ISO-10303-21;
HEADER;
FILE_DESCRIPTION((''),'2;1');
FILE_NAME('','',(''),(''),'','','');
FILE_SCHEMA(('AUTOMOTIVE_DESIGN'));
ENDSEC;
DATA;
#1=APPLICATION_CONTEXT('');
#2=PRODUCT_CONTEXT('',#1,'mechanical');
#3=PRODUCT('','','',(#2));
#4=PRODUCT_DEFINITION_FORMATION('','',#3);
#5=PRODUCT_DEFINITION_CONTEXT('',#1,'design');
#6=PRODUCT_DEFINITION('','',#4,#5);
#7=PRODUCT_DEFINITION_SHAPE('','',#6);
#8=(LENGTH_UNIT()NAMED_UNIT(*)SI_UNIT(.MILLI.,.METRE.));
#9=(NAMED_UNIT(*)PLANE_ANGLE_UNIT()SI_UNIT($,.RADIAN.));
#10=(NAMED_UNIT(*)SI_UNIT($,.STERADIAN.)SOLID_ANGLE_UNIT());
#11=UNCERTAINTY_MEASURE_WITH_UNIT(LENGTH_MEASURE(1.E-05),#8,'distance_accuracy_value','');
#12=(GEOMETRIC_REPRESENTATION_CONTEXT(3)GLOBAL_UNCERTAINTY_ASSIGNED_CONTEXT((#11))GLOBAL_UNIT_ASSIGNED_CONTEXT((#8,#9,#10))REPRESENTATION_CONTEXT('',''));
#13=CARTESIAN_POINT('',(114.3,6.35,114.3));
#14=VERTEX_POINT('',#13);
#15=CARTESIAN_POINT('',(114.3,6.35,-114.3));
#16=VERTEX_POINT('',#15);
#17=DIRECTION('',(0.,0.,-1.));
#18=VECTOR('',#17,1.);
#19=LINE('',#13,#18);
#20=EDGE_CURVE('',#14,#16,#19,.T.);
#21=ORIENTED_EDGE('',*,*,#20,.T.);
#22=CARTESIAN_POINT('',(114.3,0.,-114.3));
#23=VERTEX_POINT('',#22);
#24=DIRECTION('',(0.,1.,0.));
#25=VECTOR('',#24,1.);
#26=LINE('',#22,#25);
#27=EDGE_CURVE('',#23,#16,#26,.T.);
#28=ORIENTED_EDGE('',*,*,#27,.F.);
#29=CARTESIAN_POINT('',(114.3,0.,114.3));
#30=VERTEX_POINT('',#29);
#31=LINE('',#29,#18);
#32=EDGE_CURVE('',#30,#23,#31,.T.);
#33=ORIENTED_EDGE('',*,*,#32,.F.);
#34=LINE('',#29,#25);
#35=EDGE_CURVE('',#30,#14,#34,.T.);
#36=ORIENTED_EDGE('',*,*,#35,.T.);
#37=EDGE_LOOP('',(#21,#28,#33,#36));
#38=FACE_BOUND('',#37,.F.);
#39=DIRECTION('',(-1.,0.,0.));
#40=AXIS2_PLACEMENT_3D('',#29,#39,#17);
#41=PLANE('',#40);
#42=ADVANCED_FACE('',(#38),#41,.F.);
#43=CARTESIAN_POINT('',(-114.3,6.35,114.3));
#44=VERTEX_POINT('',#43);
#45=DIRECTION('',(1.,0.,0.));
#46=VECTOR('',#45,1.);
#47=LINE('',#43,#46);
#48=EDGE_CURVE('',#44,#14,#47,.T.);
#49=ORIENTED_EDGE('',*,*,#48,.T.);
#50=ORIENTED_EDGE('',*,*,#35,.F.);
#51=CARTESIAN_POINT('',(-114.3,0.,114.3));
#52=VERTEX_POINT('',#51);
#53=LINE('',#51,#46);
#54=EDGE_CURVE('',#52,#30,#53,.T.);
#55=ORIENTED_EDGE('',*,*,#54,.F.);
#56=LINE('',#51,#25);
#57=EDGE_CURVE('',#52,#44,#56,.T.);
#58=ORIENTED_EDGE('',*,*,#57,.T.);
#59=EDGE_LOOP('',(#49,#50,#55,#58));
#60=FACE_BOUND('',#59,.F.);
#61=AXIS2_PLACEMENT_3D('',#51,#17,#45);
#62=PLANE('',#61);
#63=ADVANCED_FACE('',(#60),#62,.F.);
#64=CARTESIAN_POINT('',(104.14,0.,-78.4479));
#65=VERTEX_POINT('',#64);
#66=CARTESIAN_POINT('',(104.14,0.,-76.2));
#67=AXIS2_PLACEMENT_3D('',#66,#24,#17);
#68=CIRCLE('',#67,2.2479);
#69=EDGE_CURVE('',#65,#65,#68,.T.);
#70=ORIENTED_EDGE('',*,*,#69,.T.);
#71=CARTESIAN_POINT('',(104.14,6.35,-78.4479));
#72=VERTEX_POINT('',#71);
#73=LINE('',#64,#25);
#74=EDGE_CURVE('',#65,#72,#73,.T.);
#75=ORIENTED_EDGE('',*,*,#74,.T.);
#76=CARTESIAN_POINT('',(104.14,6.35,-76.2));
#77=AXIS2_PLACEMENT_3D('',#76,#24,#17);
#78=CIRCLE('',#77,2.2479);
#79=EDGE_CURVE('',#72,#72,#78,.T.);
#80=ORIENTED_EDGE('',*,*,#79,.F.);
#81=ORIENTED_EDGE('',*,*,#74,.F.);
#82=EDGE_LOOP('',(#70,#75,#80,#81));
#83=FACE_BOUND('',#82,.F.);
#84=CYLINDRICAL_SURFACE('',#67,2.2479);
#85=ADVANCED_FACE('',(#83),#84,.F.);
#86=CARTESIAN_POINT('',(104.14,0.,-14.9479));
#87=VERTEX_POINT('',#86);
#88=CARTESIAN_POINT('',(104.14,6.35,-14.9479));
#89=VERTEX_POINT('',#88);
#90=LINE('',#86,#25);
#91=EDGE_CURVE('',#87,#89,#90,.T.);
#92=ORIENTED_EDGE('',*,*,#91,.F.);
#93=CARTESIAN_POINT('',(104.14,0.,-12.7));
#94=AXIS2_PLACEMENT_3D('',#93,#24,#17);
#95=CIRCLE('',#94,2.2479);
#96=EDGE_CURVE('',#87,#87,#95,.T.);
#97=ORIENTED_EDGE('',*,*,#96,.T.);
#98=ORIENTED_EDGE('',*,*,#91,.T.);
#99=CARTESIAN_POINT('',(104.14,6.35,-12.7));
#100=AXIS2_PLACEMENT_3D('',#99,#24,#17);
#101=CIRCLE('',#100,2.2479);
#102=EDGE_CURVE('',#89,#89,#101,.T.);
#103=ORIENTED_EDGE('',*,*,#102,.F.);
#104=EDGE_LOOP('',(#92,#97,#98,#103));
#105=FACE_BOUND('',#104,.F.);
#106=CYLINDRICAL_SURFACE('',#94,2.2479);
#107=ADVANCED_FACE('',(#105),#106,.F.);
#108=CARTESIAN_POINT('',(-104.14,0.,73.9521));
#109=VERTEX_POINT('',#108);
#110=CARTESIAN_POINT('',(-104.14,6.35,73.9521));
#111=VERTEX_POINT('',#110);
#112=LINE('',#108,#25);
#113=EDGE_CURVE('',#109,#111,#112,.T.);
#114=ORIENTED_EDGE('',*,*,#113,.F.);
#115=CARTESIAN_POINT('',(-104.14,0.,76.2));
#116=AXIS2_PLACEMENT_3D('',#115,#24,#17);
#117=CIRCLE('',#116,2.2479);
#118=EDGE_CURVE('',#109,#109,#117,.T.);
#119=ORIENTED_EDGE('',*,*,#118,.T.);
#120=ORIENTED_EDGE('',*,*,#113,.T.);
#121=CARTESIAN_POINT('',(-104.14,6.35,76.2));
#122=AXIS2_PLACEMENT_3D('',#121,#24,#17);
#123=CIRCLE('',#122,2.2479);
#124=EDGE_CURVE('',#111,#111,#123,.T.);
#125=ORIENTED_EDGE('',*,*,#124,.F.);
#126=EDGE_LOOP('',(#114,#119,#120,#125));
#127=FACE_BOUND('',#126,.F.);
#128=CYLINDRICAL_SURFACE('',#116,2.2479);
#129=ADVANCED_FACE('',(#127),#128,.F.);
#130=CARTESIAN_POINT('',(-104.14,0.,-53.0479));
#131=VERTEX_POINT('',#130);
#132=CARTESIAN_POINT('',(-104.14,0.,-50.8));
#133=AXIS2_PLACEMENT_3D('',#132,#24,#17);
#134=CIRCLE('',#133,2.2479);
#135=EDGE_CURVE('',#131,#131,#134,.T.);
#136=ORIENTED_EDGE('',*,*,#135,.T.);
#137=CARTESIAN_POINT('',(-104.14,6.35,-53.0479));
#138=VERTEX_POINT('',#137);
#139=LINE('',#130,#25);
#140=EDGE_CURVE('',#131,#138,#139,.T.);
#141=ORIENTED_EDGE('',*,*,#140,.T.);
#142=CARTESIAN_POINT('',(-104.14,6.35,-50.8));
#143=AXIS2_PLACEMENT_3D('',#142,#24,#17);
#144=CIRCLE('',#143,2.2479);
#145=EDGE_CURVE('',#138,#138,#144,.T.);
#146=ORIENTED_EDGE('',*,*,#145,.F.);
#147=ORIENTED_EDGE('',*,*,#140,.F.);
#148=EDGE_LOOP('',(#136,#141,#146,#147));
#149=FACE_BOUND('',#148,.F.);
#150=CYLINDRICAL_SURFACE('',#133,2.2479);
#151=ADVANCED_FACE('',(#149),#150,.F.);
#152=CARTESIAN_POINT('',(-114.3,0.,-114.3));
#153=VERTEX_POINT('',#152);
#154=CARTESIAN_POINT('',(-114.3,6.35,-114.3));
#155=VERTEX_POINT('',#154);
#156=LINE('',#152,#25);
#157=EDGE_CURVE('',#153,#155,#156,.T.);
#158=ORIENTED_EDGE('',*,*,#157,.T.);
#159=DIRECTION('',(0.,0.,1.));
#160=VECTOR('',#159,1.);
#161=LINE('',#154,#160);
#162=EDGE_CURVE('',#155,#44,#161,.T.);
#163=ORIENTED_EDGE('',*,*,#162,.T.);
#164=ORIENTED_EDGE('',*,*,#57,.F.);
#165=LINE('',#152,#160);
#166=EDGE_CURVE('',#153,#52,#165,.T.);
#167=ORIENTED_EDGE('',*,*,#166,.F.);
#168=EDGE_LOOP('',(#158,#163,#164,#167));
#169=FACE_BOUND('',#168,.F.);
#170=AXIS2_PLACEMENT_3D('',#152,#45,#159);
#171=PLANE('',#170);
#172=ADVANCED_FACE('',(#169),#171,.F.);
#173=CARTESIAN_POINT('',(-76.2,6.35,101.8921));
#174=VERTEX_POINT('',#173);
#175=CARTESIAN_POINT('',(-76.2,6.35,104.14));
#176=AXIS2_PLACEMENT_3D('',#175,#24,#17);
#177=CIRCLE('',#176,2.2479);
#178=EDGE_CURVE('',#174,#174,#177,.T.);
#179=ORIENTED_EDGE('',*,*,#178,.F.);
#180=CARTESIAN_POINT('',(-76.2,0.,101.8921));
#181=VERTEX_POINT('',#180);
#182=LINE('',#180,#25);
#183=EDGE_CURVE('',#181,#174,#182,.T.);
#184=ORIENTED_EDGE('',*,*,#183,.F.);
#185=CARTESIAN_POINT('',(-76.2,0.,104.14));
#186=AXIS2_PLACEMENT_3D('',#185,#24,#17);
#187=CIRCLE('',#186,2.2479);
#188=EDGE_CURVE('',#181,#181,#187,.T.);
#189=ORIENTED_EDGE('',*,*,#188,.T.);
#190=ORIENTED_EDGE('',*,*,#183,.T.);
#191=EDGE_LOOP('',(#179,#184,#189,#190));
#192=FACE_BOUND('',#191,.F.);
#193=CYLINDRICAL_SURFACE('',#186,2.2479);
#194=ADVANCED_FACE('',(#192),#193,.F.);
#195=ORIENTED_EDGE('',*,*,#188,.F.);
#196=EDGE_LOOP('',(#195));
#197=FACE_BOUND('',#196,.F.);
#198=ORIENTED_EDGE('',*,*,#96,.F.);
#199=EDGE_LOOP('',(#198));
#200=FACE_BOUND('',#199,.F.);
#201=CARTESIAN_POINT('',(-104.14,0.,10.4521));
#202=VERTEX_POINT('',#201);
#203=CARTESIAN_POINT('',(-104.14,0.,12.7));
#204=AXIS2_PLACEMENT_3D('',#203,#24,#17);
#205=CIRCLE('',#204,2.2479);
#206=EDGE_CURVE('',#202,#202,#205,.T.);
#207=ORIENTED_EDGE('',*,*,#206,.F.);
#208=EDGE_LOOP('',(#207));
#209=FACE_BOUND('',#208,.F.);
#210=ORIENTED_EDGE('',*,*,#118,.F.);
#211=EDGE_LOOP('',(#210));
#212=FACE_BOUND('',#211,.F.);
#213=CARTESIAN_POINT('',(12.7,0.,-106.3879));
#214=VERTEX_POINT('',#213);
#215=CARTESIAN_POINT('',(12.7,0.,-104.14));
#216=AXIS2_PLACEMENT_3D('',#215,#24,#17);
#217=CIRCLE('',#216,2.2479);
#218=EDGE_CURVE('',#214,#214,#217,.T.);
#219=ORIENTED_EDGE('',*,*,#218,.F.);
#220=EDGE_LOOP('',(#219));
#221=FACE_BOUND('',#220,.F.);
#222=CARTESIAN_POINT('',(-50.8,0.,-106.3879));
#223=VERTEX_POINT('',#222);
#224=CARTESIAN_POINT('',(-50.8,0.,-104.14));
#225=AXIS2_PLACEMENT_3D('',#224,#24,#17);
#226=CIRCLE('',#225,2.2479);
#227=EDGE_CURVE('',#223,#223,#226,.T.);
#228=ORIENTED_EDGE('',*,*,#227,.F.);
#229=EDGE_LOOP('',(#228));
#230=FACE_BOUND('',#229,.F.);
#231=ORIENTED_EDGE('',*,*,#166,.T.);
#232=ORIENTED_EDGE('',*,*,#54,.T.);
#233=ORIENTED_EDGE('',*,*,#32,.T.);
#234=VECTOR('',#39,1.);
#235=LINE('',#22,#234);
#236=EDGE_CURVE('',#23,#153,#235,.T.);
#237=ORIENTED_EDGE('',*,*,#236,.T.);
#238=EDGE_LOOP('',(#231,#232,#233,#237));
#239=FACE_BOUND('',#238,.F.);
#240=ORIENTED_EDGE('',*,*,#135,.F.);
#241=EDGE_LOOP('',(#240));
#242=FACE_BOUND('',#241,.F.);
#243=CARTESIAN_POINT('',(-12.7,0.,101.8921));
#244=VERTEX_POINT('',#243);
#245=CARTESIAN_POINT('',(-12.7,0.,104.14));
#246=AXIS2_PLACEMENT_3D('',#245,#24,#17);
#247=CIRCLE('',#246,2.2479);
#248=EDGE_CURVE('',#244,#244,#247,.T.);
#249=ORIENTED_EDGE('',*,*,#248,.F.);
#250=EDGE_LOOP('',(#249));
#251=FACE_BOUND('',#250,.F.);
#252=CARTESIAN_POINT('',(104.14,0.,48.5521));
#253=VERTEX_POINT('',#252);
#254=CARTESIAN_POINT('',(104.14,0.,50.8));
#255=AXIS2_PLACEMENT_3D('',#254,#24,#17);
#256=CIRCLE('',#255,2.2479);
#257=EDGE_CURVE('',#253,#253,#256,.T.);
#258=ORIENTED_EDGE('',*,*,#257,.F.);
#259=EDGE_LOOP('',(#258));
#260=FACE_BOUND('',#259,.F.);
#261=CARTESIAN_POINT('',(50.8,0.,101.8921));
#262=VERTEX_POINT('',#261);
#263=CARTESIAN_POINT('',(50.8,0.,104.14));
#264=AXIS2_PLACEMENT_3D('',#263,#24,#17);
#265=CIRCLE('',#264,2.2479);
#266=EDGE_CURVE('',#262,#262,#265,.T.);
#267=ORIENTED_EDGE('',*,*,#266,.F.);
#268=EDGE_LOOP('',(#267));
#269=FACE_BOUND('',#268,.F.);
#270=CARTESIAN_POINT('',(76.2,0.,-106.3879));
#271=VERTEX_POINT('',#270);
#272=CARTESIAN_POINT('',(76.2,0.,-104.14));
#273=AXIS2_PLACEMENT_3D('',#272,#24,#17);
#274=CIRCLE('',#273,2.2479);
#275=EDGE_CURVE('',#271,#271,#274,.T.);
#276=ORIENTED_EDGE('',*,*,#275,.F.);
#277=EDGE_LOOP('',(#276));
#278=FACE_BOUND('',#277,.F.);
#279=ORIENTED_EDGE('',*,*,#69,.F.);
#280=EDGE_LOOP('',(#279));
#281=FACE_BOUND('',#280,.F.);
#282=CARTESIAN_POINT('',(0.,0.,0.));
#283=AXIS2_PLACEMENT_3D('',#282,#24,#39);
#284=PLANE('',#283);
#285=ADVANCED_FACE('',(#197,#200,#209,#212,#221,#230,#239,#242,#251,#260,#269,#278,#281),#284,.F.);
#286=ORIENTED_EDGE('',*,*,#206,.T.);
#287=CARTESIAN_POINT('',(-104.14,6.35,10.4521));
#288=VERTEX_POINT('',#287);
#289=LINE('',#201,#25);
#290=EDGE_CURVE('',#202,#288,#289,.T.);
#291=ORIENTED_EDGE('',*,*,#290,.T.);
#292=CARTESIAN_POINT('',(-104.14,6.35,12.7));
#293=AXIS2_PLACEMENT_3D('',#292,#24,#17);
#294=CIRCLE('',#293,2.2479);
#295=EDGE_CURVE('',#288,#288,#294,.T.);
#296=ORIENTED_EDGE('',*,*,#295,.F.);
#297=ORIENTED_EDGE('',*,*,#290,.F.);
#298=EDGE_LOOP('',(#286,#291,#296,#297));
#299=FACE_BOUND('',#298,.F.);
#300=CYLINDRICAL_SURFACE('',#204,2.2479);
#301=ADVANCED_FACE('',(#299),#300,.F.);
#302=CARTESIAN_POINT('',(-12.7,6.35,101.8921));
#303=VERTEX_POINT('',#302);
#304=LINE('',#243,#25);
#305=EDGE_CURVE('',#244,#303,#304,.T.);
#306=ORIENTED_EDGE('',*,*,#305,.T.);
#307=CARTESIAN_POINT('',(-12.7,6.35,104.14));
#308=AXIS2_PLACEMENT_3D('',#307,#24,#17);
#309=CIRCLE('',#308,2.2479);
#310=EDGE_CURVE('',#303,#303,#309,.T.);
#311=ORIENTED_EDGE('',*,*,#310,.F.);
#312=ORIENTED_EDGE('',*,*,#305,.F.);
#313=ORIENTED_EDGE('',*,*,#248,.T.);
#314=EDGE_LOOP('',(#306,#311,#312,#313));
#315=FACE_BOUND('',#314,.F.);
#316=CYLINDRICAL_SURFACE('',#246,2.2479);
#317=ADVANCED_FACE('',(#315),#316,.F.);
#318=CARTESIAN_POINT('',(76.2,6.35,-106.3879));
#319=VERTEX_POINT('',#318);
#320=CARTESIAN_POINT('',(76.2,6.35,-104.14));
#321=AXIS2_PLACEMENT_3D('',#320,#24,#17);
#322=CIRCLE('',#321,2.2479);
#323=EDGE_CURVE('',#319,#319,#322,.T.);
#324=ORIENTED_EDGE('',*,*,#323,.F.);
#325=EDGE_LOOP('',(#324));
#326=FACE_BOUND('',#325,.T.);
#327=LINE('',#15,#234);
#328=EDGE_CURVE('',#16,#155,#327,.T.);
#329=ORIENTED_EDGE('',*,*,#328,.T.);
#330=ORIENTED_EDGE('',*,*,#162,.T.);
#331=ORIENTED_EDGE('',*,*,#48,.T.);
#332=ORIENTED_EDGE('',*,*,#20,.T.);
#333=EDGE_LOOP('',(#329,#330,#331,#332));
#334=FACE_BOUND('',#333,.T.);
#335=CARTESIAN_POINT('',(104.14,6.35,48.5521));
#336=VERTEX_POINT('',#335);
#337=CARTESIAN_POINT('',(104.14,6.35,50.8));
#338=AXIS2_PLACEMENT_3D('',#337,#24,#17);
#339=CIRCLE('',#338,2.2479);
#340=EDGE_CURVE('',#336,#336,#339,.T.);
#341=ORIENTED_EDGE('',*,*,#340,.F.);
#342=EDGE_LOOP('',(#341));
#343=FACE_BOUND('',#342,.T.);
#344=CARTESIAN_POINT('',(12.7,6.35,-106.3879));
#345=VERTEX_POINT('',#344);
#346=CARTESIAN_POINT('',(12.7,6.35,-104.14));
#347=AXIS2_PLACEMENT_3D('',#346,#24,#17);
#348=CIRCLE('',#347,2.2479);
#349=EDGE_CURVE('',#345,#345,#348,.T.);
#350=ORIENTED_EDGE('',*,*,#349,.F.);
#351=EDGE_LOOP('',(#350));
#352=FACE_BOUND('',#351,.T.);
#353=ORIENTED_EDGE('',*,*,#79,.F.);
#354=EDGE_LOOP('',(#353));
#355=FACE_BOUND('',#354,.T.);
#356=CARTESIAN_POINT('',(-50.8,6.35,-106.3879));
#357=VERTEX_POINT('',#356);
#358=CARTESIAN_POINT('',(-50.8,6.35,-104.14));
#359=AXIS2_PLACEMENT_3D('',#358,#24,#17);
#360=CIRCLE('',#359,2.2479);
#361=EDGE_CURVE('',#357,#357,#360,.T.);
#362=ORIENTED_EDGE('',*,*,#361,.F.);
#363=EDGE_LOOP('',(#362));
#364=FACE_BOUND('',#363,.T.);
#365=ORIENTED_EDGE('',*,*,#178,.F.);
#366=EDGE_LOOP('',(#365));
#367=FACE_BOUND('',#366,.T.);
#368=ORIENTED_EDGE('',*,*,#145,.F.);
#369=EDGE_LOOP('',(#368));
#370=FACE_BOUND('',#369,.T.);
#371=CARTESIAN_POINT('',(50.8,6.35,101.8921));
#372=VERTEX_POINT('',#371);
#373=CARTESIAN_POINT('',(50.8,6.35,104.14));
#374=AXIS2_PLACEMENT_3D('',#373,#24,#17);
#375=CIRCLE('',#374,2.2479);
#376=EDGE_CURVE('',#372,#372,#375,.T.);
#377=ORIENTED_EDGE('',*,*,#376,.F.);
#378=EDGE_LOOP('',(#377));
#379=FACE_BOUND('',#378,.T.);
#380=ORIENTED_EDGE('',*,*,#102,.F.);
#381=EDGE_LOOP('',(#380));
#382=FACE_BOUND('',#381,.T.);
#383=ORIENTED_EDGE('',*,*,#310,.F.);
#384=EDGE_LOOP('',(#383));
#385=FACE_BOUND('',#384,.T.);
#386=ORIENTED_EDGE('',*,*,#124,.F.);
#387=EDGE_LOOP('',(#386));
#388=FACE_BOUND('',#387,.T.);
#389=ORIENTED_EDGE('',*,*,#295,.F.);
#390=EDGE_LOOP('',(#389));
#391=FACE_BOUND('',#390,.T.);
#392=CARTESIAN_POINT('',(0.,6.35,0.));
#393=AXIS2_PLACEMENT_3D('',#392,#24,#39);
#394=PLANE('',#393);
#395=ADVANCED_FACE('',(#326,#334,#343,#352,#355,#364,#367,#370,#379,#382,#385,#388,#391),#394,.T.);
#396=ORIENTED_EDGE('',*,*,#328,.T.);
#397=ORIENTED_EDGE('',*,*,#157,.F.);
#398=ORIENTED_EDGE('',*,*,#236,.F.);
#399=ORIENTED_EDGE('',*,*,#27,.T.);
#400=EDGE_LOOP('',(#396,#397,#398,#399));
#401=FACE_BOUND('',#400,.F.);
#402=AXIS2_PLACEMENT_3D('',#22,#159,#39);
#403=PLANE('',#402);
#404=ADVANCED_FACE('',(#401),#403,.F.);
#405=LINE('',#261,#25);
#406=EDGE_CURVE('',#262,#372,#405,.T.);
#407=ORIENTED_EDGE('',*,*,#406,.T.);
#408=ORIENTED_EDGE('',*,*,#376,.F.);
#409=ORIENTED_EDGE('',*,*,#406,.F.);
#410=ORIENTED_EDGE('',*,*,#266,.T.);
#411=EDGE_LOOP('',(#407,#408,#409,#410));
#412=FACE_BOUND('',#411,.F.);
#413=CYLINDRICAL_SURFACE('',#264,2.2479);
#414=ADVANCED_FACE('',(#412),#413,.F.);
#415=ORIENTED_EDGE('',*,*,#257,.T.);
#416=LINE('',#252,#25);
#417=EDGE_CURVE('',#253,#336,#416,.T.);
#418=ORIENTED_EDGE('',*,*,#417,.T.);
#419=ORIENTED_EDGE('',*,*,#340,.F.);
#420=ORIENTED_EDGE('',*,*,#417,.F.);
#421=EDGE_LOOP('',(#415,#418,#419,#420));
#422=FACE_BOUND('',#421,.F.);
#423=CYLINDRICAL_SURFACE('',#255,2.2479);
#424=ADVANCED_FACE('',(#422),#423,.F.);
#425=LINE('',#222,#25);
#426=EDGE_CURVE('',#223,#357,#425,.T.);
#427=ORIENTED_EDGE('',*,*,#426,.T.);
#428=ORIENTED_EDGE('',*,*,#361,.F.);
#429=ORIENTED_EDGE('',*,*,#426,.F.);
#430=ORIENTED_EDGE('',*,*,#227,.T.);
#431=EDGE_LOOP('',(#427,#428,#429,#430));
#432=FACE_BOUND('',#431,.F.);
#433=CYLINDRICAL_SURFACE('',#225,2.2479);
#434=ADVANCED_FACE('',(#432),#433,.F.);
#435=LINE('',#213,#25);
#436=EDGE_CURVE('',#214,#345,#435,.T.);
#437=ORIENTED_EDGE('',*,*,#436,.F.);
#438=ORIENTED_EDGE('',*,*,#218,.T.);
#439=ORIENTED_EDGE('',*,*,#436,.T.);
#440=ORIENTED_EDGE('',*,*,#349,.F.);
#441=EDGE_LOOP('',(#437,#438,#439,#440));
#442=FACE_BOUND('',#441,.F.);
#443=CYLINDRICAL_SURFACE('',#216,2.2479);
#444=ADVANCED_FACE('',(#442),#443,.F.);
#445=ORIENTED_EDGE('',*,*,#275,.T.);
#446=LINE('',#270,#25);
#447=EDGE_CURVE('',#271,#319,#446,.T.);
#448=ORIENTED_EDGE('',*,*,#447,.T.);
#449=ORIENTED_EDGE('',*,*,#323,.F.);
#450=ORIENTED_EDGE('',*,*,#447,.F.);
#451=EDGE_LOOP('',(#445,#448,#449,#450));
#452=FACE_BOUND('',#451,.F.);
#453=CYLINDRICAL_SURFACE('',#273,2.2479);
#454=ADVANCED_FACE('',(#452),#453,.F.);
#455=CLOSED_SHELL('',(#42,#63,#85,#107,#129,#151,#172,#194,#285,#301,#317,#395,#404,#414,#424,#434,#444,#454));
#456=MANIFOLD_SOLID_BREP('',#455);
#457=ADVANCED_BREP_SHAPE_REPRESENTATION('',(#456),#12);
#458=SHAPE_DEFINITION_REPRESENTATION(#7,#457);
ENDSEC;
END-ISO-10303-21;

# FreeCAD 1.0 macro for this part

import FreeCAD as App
import Part
import Sketcher
Q = App.Units.Quantity


def add_polygon(sketch, points):
    """Adds a closed chain of lines whose ends are joined by coincident constraints."""
    first, n = sketch.GeometryCount, len(points)
    for a, b in zip(points, points[1:] + points[:1]):
        sketch.addGeometry(Part.LineSegment(App.Vector(*a, 0), App.Vector(*b, 0)), False)
    for i in range(n):
        sketch.addConstraint(Sketcher.Constraint("Coincident", first + i, 2, first + (i + 1) % n, 1))

doc = App.newDocument("Part")
body = doc.addObject("PartDesign::Body", "Body")

sketch1 = body.newObject("Sketcher::SketchObject", "Sketch")
sketch1.AttachmentSupport = (doc.getObject("XZ_Plane"), [""])
sketch1.MapMode = "FlatFace"
add_polygon(sketch1, [(-114.3, -114.3), (-114.3, 114.3), (114.3, 114.3), (114.3, -114.3)])
sketch1.addConstraint([
    Sketcher.Constraint("Vertical", 0),
    Sketcher.Constraint("Horizontal", 1),
    Sketcher.Constraint("Vertical", 2),
    Sketcher.Constraint("Horizontal", 3),
    Sketcher.Constraint("Symmetric", 0, 2, 2, 2, -1, 1),
    Sketcher.Constraint("Equal", 3, 0),
    Sketcher.Constraint("DistanceX", 1, 1, 1, 2, Q("9 in")),
])
pad1 = body.newObject("PartDesign::Pad", "Pad")
pad1.Profile = sketch1
pad1.Length = Q("0.25 in")
pad1.Reversed = True

sketch2 = body.newObject("Sketcher::SketchObject", "Sketch001")
sketch2.AttachmentSupport = (doc.getObject("XZ_Plane"), [""])
sketch2.MapMode = "FlatFace"
sketch2.addGeometry([
    Part.Circle(App.Vector(-104.14, -50.8, 0), App.Vector(0, 0, 1), 2.2479),
    Part.Circle(App.Vector(-104.14, 12.7, 0), App.Vector(0, 0, 1), 2.2479),
    Part.Circle(App.Vector(-50.8, -104.14, 0), App.Vector(0, 0, 1), 2.2479),
    Part.Circle(App.Vector(12.7, -104.14, 0), App.Vector(0, 0, 1), 2.2479),
    Part.Circle(App.Vector(-12.7, 104.14, 0), App.Vector(0, 0, 1), 2.2479),
    Part.Circle(App.Vector(50.8, 104.14, 0), App.Vector(0, 0, 1), 2.2479),
    Part.Circle(App.Vector(104.14, 50.8, 0), App.Vector(0, 0, 1), 2.2479),
    Part.Circle(App.Vector(104.14, -12.7, 0), App.Vector(0, 0, 1), 2.2479),
    Part.Circle(App.Vector(76.2, -104.14, 0), App.Vector(0, 0, 1), 2.2479),
    Part.Circle(App.Vector(104.14, -76.2, 0), App.Vector(0, 0, 1), 2.2479),
    Part.Circle(App.Vector(-104.14, 76.2, 0), App.Vector(0, 0, 1), 2.2479),
    Part.Circle(App.Vector(-76.2, 104.14, 0), App.Vector(0, 0, 1), 2.2479),
], False)
sketch2.addConstraint([
    Sketcher.Constraint("Equal", 0, 1),
    Sketcher.Constraint("Equal", 1, 2),
    Sketcher.Constraint("Equal", 2, 3),
    Sketcher.Constraint("Equal", 3, 4),
    Sketcher.Constraint("Equal", 4, 5),
    Sketcher.Constraint("Equal", 5, 6),
    Sketcher.Constraint("Equal", 6, 7),
    Sketcher.Constraint("Equal", 7, 8),
    Sketcher.Constraint("Equal", 8, 9),
    Sketcher.Constraint("Equal", 9, 10),
    Sketcher.Constraint("Equal", 10, 11),
    Sketcher.Constraint("Symmetric", 3, 3, 4, 3, -1, 1),
    Sketcher.Constraint("Symmetric", 2, 3, 5, 3, -1, 1),
    Sketcher.Constraint("Symmetric", 0, 3, 6, 3, -1, 1),
    Sketcher.Constraint("Symmetric", 1, 3, 7, 3, -1, 1),
    Sketcher.Constraint("Symmetric", 9, 3, 10, 3, -1, 1),
    Sketcher.Constraint("Symmetric", 8, 3, 11, 3, -1, 1),
    Sketcher.Constraint("Horizontal", 2, 3, 3, 3),
    Sketcher.Constraint("Horizontal", 3, 3, 8, 3),
    Sketcher.Constraint("Vertical", 0, 3, 1, 3),
    Sketcher.Constraint("Vertical", 7, 3, 9, 3),
    Sketcher.Constraint("Diameter", 0, Q("0.177 in")),
    Sketcher.Constraint("DistanceY", 0, 3, -1, 1, Q("2 in")),
    Sketcher.Constraint("DistanceX", 2, 3, -1, 1, Q("2 in")),
    Sketcher.Constraint("DistanceX", -1, 1, 8, 3, Q("3 in")),
    Sketcher.Constraint("DistanceY", 9, 3, -1, 1, Q("3 in")),
    Sketcher.Constraint("DistanceX", 4, 3, 3, 3, Q("1 in")),
    Sketcher.Constraint("DistanceX", 0, 3, -1, 1, Q("4.1 in")),
    Sketcher.Constraint("DistanceY", -1, 1, 1, 3, Q("0.5 in")),
    Sketcher.Constraint("DistanceY", 2, 3, -1, 1, Q("4.1 in")),
])
doc.recompute()
hole = body.newObject("PartDesign::Hole", "Hole")
hole.Profile = sketch2
hole.ThreadType = "None"
hole.Diameter = Q("0.177 in")
hole.DepthType = "Dimension"
hole.Depth = Q("1 in")
hole.DrillPoint = "Flat"

doc.recompute()
